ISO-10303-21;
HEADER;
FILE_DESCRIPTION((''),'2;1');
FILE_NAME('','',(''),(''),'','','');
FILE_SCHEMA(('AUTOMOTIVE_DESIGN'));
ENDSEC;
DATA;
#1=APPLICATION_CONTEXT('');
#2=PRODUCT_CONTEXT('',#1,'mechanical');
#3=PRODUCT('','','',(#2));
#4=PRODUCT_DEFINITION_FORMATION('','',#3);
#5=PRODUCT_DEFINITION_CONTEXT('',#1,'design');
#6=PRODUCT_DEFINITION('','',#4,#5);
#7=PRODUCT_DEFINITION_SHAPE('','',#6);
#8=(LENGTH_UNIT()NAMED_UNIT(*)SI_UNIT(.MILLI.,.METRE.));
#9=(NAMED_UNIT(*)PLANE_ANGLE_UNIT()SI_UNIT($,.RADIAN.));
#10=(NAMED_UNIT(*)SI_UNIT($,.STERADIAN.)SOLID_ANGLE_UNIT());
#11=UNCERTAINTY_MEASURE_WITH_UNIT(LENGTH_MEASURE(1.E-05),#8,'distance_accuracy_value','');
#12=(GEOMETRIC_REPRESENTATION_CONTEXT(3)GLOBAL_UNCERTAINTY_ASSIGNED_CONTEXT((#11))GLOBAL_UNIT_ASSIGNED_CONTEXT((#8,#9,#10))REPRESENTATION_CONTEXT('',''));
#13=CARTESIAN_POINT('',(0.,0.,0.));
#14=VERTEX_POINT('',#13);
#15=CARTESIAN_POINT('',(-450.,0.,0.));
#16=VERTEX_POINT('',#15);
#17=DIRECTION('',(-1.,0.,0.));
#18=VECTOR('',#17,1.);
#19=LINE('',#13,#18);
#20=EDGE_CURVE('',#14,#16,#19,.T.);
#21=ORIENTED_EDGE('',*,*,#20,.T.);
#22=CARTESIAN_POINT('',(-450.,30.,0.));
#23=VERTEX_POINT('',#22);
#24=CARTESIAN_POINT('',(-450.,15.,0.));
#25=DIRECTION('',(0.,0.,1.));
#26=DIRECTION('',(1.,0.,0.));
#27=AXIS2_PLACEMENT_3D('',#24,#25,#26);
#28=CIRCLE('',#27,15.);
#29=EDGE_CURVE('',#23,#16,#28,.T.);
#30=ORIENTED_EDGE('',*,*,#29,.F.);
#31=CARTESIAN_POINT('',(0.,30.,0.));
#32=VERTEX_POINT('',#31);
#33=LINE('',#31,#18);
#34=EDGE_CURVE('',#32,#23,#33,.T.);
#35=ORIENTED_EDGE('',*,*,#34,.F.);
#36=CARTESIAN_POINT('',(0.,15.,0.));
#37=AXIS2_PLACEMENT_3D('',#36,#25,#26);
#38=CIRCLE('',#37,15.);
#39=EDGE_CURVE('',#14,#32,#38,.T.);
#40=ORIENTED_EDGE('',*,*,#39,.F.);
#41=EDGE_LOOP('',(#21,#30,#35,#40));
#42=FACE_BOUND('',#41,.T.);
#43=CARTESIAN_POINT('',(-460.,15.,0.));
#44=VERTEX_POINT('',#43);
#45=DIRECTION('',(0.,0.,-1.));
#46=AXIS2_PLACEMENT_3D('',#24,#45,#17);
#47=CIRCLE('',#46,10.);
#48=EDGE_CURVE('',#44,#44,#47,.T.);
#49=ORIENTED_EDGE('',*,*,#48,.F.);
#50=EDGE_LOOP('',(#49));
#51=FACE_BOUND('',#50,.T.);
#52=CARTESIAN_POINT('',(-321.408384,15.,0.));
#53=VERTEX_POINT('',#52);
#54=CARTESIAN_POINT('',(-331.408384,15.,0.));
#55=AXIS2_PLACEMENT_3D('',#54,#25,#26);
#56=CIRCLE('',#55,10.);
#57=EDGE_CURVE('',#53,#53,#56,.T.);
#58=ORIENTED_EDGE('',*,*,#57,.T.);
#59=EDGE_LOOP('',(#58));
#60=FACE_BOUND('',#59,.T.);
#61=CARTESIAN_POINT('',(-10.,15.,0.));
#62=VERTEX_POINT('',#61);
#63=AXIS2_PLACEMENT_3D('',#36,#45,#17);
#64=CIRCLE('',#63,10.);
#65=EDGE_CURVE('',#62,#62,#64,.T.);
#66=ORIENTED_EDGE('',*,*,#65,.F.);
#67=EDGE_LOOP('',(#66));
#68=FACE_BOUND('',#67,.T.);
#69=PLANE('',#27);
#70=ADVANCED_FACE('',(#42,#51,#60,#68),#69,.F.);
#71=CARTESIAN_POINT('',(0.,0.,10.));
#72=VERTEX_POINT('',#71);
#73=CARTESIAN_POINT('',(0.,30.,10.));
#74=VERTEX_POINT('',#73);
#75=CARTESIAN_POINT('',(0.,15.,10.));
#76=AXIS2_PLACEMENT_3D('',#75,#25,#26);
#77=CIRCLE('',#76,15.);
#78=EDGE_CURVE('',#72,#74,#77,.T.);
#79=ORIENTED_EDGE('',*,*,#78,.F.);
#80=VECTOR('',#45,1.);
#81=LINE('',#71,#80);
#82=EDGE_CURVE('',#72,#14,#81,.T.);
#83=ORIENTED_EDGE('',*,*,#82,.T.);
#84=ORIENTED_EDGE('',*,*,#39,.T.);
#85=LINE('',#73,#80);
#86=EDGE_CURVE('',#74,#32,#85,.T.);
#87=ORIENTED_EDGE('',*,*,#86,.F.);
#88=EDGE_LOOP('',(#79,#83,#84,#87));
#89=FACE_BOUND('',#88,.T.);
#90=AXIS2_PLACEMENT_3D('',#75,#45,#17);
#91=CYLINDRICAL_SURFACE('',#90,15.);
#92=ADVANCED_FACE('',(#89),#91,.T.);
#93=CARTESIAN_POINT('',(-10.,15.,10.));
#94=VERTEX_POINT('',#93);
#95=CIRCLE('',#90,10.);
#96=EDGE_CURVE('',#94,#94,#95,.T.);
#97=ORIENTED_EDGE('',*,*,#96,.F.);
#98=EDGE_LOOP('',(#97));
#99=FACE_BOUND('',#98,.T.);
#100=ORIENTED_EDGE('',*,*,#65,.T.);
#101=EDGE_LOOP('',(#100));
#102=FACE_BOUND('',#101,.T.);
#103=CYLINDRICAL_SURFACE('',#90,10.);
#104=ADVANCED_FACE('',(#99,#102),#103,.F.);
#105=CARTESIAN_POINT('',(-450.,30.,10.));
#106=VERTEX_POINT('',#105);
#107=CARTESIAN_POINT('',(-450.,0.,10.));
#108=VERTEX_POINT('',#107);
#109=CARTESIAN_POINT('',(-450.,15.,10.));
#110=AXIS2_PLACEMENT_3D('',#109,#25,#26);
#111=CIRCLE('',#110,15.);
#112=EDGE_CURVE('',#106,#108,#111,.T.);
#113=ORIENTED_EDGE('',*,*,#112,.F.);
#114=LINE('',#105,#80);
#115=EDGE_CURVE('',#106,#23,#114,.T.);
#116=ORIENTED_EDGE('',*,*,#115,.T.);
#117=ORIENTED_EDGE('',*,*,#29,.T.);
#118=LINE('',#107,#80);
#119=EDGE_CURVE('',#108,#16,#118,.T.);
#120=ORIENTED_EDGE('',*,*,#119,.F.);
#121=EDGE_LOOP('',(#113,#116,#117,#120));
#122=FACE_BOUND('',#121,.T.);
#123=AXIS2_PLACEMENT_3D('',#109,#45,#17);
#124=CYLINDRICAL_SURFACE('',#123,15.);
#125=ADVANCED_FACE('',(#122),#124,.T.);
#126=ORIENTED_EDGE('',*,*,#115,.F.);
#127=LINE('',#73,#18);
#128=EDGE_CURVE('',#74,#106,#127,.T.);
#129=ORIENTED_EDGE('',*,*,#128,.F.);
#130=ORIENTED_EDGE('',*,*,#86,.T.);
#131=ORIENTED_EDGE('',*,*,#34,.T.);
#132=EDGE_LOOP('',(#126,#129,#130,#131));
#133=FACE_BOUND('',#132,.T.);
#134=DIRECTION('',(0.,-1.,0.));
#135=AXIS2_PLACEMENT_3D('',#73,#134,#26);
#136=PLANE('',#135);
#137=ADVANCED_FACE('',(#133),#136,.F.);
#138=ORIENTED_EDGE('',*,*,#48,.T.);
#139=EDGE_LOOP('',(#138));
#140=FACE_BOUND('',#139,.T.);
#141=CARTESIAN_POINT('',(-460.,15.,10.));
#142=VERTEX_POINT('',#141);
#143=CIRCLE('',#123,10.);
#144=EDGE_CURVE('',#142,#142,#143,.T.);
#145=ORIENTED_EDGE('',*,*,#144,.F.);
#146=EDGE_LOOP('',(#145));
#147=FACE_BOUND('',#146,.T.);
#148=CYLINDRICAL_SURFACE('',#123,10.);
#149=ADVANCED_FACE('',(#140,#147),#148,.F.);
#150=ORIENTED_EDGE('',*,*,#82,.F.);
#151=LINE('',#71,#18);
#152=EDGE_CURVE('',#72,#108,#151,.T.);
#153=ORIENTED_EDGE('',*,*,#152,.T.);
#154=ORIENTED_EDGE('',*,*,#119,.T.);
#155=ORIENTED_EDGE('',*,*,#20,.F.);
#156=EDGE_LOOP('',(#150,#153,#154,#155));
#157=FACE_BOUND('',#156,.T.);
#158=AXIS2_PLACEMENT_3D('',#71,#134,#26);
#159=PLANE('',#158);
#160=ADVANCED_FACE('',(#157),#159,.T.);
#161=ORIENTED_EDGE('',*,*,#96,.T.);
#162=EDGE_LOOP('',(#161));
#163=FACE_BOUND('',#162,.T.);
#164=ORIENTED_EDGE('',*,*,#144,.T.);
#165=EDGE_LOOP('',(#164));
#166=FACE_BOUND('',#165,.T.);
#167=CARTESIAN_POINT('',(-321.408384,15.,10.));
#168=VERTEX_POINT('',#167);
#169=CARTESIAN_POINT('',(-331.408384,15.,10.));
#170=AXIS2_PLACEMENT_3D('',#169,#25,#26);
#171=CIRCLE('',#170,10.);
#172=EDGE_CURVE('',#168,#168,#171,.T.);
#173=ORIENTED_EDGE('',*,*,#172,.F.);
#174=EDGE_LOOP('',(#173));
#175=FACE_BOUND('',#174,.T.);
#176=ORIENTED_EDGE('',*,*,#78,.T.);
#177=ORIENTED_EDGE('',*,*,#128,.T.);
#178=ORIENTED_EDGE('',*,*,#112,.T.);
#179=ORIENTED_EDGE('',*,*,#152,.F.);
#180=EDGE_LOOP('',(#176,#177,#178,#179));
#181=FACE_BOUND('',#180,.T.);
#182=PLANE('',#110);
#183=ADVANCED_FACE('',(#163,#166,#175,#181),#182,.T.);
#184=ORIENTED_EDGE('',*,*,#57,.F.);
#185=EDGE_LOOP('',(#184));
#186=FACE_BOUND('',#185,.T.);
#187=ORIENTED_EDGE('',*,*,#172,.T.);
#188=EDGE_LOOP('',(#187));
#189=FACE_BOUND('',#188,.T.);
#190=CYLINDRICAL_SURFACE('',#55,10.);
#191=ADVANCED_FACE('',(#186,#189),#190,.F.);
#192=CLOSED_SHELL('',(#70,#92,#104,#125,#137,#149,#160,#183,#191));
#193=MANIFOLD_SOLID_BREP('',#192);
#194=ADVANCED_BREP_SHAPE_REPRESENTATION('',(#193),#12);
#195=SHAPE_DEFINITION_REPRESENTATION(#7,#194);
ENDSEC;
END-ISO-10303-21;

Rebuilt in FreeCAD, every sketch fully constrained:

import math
import FreeCAD as App
import Part
import Sketcher
from FreeCAD import Vector
Q = App.Units.Quantity

doc = App.newDocument("Part")
params = doc.addObject("Spreadsheet::Sheet", "Params")
for row, (alias, value) in enumerate([
    ("sketch1_radius", "15 mm"),
    ("sketch1_width", "450 mm"),
    ("pad1_length", "10 mm"),
    ("sketch2_diameter", "20 mm"),
    ("pocket1_length", "10 mm"),
    ("sketch3_diameter", "20 mm"),
    ("pocket2_length", "10 mm"),
], start=1):
    params.set(f"A{row}", alias)
    params.set(f"B{row}", "=" + value)
    params.setAlias(f"B{row}", alias)

body = doc.addObject("PartDesign::Body", "Body")

# Sketch on XY plane
sketch1 = doc.addObject("Sketcher::SketchObject", "Sketch")
body.addObject(sketch1)
sketch1.AttachmentSupport = (doc.XY_Plane, [""])
sketch1.MapMode = "FlatFace"
sketch1.addGeometry(Part.LineSegment(Vector(-450, 0, 0), Vector(0, 0, 0)), False)
sketch1.addGeometry(Part.ArcOfCircle(Part.Circle(Vector(0, 15, 0), Vector(0, 0, 1), 15), math.radians(-90), math.radians(90)), False)
sketch1.addGeometry(Part.LineSegment(Vector(0, 30, 0), Vector(-450, 30, 0)), False)
sketch1.addGeometry(Part.ArcOfCircle(Part.Circle(Vector(-450, 15, 0), Vector(0, 0, 1), 15), math.radians(90), math.radians(270)), False)
sketch1.addConstraint(Sketcher.Constraint("Tangent", 0, 2, 1, 1))
sketch1.addConstraint(Sketcher.Constraint("Tangent", 1, 2, 2, 1))
sketch1.addConstraint(Sketcher.Constraint("Tangent", 2, 2, 3, 1))
sketch1.addConstraint(Sketcher.Constraint("Tangent", 3, 2, 0, 1))
sketch1.addConstraint(Sketcher.Constraint("Horizontal", 0))
sketch1.addConstraint(Sketcher.Constraint("Horizontal", 2))
sketch1.addConstraint(Sketcher.Constraint("Coincident", 0, 2, -1, 1))
sketch1.addConstraint(Sketcher.Constraint("Radius", 1, Q("15 mm")))
sketch1.addConstraint(Sketcher.Constraint("DistanceX", 0, 1, 0, 2, Q("450 mm")))
sketch1.setExpression("Constraints[7]", "Params.sketch1_radius")
sketch1.setExpression("Constraints[8]", "Params.sketch1_width")
pad1 = doc.addObject("PartDesign::Pad", "Pad")
body.addObject(pad1)
pad1.Profile = sketch1
pad1.setExpression("Length", "Params.pad1_length")

# Sketch on XY plane
sketch2 = doc.addObject("Sketcher::SketchObject", "Sketch001")
body.addObject(sketch2)
sketch2.AttachmentSupport = (doc.XY_Plane, [""])
sketch2.MapMode = "FlatFace"
sketch2.addGeometry(Part.Circle(Vector(0, 15, 0), Vector(0, 0, 1), 10), False)
sketch2.addGeometry(Part.Circle(Vector(-450, 15, 0), Vector(0, 0, 1), 10), False)
sketch2.addConstraint(Sketcher.Constraint("Equal", 0, 1))
sketch2.addConstraint(Sketcher.Constraint("PointOnObject", 0, 3, -2))
sketch2.addConstraint(Sketcher.Constraint("Horizontal", 0, 3, 1, 3))
sketch2.addConstraint(Sketcher.Constraint("Diameter", 0, Q("20 mm")))
sketch2.addConstraint(Sketcher.Constraint("DistanceY", -1, 1, 0, 3, Q("15 mm")))
sketch2.addConstraint(Sketcher.Constraint("DistanceX", 1, 3, -1, 1, Q("450 mm")))
sketch2.setExpression("Constraints[3]", "Params.sketch2_diameter")
pocket1 = doc.addObject("PartDesign::Pocket", "Pocket")
body.addObject(pocket1)
pocket1.Profile = sketch2
pocket1.setExpression("Length", "Params.pocket1_length")
pocket1.Reversed = True

# Sketch on XY plane
sketch3 = doc.addObject("Sketcher::SketchObject", "Sketch002")
body.addObject(sketch3)
sketch3.AttachmentSupport = (doc.XY_Plane, [""])
sketch3.MapMode = "FlatFace"
sketch3.AttachmentOffset = App.Placement(Vector(0, 0, 10), App.Rotation())
sketch3.addGeometry(Part.Circle(Vector(-331, 15, 0), Vector(0, 0, 1), 10), False)
sketch3.addConstraint(Sketcher.Constraint("Diameter", 0, Q("20 mm")))
sketch3.addConstraint(Sketcher.Constraint("DistanceY", -1, 1, 0, 3, Q("15 mm")))
sketch3.addConstraint(Sketcher.Constraint("DistanceX", 0, 3, -1, 1, Q("331.408384 mm")))
sketch3.setExpression("Constraints[0]", "Params.sketch3_diameter")
pocket2 = doc.addObject("PartDesign::Pocket", "Pocket001")
body.addObject(pocket2)
pocket2.Profile = sketch3
pocket2.setExpression("Length", "Params.pocket2_length")

doc.recompute()
